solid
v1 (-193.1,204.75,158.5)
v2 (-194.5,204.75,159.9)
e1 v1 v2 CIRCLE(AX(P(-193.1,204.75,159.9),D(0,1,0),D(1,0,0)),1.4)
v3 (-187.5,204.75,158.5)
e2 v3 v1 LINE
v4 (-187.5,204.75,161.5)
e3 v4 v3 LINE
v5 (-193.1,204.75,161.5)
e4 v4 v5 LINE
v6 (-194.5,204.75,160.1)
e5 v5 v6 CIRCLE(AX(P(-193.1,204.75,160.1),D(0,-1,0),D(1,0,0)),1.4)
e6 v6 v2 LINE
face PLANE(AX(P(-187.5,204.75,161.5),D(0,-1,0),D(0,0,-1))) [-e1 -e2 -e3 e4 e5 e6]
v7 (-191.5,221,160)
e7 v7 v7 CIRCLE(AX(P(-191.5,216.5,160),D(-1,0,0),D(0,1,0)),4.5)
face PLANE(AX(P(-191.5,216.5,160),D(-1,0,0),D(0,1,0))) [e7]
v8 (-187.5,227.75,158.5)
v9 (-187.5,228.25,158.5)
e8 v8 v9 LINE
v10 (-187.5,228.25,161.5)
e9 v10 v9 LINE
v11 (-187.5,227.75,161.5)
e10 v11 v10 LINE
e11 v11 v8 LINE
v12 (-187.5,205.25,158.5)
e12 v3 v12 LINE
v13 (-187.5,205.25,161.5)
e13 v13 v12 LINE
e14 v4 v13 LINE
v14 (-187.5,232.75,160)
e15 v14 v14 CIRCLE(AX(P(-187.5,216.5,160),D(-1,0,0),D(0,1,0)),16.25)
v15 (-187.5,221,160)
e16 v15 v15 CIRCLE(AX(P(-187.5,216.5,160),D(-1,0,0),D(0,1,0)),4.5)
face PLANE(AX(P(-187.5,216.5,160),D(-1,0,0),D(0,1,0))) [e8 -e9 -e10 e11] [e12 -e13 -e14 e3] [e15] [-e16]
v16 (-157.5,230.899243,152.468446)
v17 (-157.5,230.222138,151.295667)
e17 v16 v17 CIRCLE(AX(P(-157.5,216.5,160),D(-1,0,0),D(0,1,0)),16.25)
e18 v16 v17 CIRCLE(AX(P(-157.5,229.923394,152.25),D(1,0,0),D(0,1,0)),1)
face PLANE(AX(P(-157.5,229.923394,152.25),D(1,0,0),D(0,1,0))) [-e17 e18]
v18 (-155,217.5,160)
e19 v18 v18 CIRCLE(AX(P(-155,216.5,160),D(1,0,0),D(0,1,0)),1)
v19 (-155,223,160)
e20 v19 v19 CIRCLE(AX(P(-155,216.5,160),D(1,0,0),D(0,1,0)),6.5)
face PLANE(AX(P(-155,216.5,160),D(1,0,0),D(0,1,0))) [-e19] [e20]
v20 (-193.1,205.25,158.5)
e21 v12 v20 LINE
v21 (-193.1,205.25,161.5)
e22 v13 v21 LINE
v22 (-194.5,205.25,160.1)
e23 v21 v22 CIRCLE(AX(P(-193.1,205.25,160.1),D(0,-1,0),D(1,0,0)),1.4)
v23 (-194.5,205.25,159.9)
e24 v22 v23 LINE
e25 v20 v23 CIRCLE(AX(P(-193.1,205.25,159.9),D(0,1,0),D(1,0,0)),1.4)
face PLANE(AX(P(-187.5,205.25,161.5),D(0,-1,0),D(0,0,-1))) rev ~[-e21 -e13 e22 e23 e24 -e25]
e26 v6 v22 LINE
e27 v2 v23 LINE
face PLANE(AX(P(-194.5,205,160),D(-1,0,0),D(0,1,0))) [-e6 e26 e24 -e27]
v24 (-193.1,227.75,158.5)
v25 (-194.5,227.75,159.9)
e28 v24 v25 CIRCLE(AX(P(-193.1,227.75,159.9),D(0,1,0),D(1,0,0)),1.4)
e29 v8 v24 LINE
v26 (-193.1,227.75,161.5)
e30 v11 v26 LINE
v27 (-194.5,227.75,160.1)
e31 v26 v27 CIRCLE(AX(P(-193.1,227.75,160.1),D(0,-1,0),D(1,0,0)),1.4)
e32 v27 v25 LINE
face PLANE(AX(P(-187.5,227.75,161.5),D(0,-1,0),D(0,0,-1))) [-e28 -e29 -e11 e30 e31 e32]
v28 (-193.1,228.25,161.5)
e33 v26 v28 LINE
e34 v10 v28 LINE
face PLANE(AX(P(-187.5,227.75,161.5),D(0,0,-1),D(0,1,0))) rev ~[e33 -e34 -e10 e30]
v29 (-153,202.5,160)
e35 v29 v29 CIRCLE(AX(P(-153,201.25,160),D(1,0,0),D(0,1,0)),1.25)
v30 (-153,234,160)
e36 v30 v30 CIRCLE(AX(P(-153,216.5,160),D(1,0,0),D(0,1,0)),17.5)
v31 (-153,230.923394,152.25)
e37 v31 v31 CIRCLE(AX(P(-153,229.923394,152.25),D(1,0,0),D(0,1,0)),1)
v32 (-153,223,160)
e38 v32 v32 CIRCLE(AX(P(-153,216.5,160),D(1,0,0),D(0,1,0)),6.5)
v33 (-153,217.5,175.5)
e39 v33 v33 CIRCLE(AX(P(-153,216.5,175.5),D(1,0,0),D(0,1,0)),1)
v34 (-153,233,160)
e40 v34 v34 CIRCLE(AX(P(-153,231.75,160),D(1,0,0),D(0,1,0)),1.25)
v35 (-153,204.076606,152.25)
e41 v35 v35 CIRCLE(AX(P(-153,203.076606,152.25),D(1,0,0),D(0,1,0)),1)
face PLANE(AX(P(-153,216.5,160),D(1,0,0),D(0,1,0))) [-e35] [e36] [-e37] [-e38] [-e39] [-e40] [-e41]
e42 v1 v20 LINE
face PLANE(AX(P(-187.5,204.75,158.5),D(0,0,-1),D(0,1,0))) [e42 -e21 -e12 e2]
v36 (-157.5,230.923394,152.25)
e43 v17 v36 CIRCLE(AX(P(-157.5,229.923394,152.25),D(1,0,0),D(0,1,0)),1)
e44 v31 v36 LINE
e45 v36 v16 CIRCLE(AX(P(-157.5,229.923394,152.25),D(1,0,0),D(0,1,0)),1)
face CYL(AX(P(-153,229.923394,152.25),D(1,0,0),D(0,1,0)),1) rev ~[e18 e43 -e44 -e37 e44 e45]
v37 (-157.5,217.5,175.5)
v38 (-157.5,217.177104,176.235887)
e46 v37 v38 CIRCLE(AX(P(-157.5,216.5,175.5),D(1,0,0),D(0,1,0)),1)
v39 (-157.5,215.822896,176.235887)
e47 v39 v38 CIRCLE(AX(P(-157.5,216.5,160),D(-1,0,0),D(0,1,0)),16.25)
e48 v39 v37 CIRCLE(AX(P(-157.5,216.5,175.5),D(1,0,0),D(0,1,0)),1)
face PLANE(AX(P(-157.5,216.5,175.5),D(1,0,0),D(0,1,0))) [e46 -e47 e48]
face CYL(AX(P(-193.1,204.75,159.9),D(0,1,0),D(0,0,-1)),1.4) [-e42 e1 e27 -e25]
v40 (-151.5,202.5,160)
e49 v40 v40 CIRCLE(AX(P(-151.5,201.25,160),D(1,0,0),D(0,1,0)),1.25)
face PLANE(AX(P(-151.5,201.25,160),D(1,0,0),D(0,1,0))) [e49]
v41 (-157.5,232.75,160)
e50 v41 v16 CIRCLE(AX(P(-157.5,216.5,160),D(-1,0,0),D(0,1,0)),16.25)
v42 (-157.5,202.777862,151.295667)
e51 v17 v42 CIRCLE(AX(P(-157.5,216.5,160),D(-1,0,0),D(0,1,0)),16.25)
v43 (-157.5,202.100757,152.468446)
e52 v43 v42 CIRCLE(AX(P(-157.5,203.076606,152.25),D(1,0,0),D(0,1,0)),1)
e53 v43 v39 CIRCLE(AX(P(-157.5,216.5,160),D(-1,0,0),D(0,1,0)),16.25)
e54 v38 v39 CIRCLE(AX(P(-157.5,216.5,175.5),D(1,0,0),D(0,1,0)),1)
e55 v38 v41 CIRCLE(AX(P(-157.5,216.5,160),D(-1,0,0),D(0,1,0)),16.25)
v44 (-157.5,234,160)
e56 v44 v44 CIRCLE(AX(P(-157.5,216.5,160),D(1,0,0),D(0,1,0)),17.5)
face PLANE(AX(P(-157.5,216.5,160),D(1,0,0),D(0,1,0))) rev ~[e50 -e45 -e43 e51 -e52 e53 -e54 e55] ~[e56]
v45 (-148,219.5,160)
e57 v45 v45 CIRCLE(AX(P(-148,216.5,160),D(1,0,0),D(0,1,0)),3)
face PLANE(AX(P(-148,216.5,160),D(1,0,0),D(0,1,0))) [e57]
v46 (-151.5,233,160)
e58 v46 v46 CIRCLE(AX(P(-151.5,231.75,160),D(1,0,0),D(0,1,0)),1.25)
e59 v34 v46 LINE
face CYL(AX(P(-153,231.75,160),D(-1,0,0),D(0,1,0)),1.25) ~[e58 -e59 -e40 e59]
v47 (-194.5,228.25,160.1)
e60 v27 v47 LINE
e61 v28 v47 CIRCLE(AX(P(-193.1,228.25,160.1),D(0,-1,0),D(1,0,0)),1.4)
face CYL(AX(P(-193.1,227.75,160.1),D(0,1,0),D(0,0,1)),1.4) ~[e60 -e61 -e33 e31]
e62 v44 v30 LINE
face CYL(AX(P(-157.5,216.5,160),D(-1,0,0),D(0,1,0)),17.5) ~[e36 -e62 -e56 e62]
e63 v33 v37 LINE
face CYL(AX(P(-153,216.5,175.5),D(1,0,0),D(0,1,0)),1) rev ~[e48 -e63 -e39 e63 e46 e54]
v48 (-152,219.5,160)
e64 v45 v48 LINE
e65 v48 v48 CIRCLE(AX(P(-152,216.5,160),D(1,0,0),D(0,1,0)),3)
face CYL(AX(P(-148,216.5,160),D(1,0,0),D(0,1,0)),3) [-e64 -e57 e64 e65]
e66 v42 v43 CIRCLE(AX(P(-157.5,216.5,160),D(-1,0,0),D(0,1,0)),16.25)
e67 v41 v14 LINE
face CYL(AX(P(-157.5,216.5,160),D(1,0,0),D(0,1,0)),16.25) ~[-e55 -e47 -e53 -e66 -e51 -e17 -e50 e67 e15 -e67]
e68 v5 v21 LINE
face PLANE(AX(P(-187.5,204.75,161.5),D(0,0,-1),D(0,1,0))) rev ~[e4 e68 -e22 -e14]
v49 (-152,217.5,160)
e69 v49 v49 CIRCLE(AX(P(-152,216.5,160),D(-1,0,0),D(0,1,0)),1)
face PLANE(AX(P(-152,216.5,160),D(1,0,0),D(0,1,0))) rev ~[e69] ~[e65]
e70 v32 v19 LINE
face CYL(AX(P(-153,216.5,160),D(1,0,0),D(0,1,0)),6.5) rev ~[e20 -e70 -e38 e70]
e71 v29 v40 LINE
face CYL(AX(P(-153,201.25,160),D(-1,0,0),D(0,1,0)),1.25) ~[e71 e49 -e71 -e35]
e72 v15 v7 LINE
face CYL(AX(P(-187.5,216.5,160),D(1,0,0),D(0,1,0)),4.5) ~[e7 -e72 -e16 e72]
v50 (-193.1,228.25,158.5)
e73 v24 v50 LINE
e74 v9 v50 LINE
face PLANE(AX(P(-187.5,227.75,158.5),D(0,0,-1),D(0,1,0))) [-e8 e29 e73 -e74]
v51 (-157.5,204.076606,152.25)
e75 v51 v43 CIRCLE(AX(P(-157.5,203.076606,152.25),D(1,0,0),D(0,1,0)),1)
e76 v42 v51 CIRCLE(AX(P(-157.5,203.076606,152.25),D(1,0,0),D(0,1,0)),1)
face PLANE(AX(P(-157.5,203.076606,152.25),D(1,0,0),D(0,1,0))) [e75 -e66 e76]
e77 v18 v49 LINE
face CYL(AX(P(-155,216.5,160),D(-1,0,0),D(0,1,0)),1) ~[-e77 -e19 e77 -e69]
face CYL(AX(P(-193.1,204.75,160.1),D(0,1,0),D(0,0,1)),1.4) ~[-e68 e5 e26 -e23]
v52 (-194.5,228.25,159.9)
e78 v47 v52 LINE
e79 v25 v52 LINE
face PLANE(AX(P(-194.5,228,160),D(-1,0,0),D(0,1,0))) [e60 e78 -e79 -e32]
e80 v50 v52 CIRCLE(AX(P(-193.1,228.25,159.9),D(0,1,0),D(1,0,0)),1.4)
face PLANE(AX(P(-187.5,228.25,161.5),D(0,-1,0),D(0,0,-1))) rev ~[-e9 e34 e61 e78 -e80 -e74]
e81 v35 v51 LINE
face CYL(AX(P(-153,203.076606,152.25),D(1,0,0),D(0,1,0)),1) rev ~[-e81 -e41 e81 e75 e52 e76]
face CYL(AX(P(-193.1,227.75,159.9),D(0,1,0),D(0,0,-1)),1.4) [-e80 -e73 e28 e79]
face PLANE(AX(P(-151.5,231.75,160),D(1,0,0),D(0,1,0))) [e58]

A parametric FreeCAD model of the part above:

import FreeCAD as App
import Part
import Sketcher

V = App.Vector


def edges_at(feature, points):
    """Names of the edges that pass closest to the given points."""
    edges = feature.Shape.Edges
    near = lambda p: min(range(len(edges)), key=lambda i: edges[i].distToShape(Part.Vertex(*p))[0])
    return sorted({f"Edge{near(p) + 1}" for p in points})


def add_polygon(sketch, points):
    """Adds a closed chain of lines whose ends are joined by coincident constraints."""
    first, n = sketch.GeometryCount, len(points)
    for a, b in zip(points, points[1:] + points[:1]):
        sketch.addGeometry(Part.LineSegment(App.Vector(*a, 0), App.Vector(*b, 0)), False)
    for i in range(n):
        sketch.addConstraint(Sketcher.Constraint("Coincident", first + i, 2, first + (i + 1) % n, 1))

doc = App.newDocument("Part")
body = doc.addObject("PartDesign::Body", "Body")

sketch1 = doc.addObject("Sketcher::SketchObject", "Sketch")
body.addObject(sketch1)
sketch1.AttachmentSupport = (doc.XY_Plane, [""])
sketch1.MapMode = "FlatFace"
sketch1.addGeometry(Part.Circle(V(0, 0, 0), V(0, 0, 1), 18), False)
sketch1.addConstraint([
    Sketcher.Constraint("Coincident", 0, 3, -1, 1),
    Sketcher.Constraint("Diameter", 0, 35.0),
])
pad1 = doc.addObject("PartDesign::Pad", "Pad")
body.addObject(pad1)
pad1.Profile = sketch1
pad1.Length = 4.5

sketch2 = doc.addObject("Sketcher::SketchObject", "Sketch001")
body.addObject(sketch2)
sketch2.AttachmentSupport = (doc.XY_Plane, [""])
sketch2.MapMode = "FlatFace"
sketch2.addGeometry(Part.Circle(V(0, 0, 0), V(0, 0, 1), 16), False)
sketch2.addConstraint([
    Sketcher.Constraint("Coincident", 0, 3, -1, 1),
    Sketcher.Constraint("Diameter", 0, 32.5),
])
pad2 = doc.addObject("PartDesign::Pad", "Pad001")
body.addObject(pad2)
pad2.Profile = sketch2
pad2.Length = 30
pad2.Reversed = True

sketch3 = doc.addObject("Sketcher::SketchObject", "Sketch002")
body.addObject(sketch3)
sketch3.AttachmentSupport = (doc.XY_Plane, [""])
sketch3.MapMode = "FlatFace"
sketch3.AttachmentOffset = App.Placement(V(0, 0, -30), App.Rotation())
sketch3.addGeometry(Part.Circle(V(0, 0, 0), V(0, 0, 1), 4.5), False)
sketch3.addConstraint([
    Sketcher.Constraint("Coincident", 0, 3, -1, 1),
    Sketcher.Constraint("Diameter", 0, 9.0),
])
pad3 = doc.addObject("PartDesign::Pad", "Pad002")
body.addObject(pad3)
pad3.Profile = sketch3
pad3.Length = 4
pad3.Reversed = True

sketch4 = doc.addObject("Sketcher::SketchObject", "Sketch003")
body.addObject(sketch4)
sketch4.AttachmentSupport = (doc.XY_Plane, [""])
sketch4.MapMode = "FlatFace"
sketch4.AttachmentOffset = App.Placement(V(0, 0, -30), App.Rotation())
add_polygon(sketch4, [(11.2, -1.5), (11.2, 1.5), (11.8, 1.5), (11.8, -1.5)])
add_polygon(sketch4, [(-11.8, -1.5), (-11.8, 1.5), (-11.2, 1.5), (-11.2, -1.5)])
sketch4.addConstraint([
    Sketcher.Constraint("Vertical", 0),
    Sketcher.Constraint("Horizontal", 1),
    Sketcher.Constraint("Vertical", 2),
    Sketcher.Constraint("Horizontal", 3),
    Sketcher.Constraint("Vertical", 4),
    Sketcher.Constraint("Horizontal", 5),
    Sketcher.Constraint("Vertical", 6),
    Sketcher.Constraint("Horizontal", 7),
    Sketcher.Constraint("Symmetric", 2, 2, 4, 2, -1, 1),
    Sketcher.Constraint("Symmetric", 0, 2, 6, 2, -1, 1),
    Sketcher.Constraint("Horizontal", 1, 2, 4, 2),
    Sketcher.Constraint("DistanceY", 0, 1, 0, 2, 3.0),
    Sketcher.Constraint("DistanceX", 1, 1, 1, 2, 0.5),
    Sketcher.Constraint("DistanceX", 4, 2, 0, 2, 23.0),
])
pad4 = doc.addObject("PartDesign::Pad", "Pad003")
body.addObject(pad4)
pad4.Profile = sketch4
pad4.Length = 7
pad4.Reversed = True
doc.recompute()

fillet = doc.addObject("PartDesign::Fillet", "Fillet")
body.addObject(fillet)
fillet.Base = (pad4, edges_at(pad4, [
    (11.5, -1.5, -37),
    (11.5, 1.5, -37),
    (-11.5, 1.5, -37),
    (-11.5, -1.5, -37),
]))
fillet.Radius = 1.4

sketch5 = doc.addObject("Sketcher::SketchObject", "Sketch004")
body.addObject(sketch5)
sketch5.AttachmentSupport = (doc.XY_Plane, [""])
sketch5.MapMode = "FlatFace"
sketch5.AttachmentOffset = App.Placement(V(0, 0, 4.5), App.Rotation())
sketch5.addGeometry([
    Part.Circle(V(-15.2, 0, 0), V(0, 0, 1), 1.2),
    Part.Circle(V(15.2, 0, 0), V(0, 0, 1), 1.2),
], False)
sketch5.addConstraint([
    Sketcher.Constraint("Equal", 0, 1),
    Sketcher.Constraint("Symmetric", 0, 3, 1, 3, -1, 1),
    Sketcher.Constraint("PointOnObject", 0, 3, -1),
    Sketcher.Constraint("Diameter", 0, 2.5),
    Sketcher.Constraint("DistanceX", 0, 3, 1, 3, 30.5),
])
pad5 = doc.addObject("PartDesign::Pad", "Pad004")
body.addObject(pad5)
pad5.Profile = sketch5
pad5.Length = 1.5

sketch6 = doc.addObject("Sketcher::SketchObject", "Sketch005")
body.addObject(sketch6)
sketch6.AttachmentSupport = (doc.XY_Plane, [""])
sketch6.MapMode = "FlatFace"
sketch6.AttachmentOffset = App.Placement(V(0, 0, 4.5), App.Rotation())
sketch6.addGeometry([
    Part.Circle(V(0, 15.5, 0), V(0, 0, 1), 1),
    Part.Circle(V(-13.4, -7.8, 0), V(0, 0, 1), 1),
    Part.Circle(V(13.4, -7.8, 0), V(0, 0, 1), 1),
], False)
sketch6.addConstraint([
    Sketcher.Constraint("Equal", 0, 1),
    Sketcher.Constraint("Equal", 1, 2),
    Sketcher.Constraint("Symmetric", 1, 3, 2, 3, -2),
    Sketcher.Constraint("PointOnObject", 0, 3, -2),
    Sketcher.Constraint("Diameter", 0, 2.0),
    Sketcher.Constraint("DistanceY", -1, 1, 0, 3, 15.5),
    Sketcher.Constraint("DistanceY", 1, 3, -1, 1, 7.75),
    Sketcher.Constraint("DistanceX", 1, 3, 2, 3, 26.846788),
])
pocket1 = doc.addObject("PartDesign::Pocket", "Pocket")
body.addObject(pocket1)
pocket1.Profile = sketch6
pocket1.Length = 4.5

sketch7 = doc.addObject("Sketcher::SketchObject", "Sketch006")
body.addObject(sketch7)
sketch7.AttachmentSupport = (doc.XY_Plane, [""])
sketch7.MapMode = "FlatFace"
sketch7.AttachmentOffset = App.Placement(V(0, 0, 4.5), App.Rotation())
sketch7.addGeometry(Part.Circle(V(0, 0, 0), V(0, 0, 1), 6), False)
sketch7.addConstraint([
    Sketcher.Constraint("Coincident", 0, 3, -1, 1),
    Sketcher.Constraint("Diameter", 0, 13.0),
])
pocket2 = doc.addObject("PartDesign::Pocket", "Pocket001")
body.addObject(pocket2)
pocket2.Profile = sketch7
pocket2.Length = 2

sketch8 = doc.addObject("Sketcher::SketchObject", "Sketch007")
body.addObject(sketch8)
sketch8.AttachmentSupport = (doc.XY_Plane, [""])
sketch8.MapMode = "FlatFace"
sketch8.AttachmentOffset = App.Placement(V(0, 0, 2.5), App.Rotation())
sketch8.addGeometry(Part.Circle(V(0, 0, 0), V(0, 0, 1), 1), False)
sketch8.addConstraint([
    Sketcher.Constraint("Coincident", 0, 3, -1, 1),
    Sketcher.Constraint("Diameter", 0, 2.0),
])
pad6 = doc.addObject("PartDesign::Pad", "Pad005")
body.addObject(pad6)
pad6.Profile = sketch8
pad6.Length = 7

sketch9 = doc.addObject("Sketcher::SketchObject", "Sketch008")
body.addObject(sketch9)
sketch9.AttachmentSupport = (doc.XY_Plane, [""])
sketch9.MapMode = "FlatFace"
sketch9.AttachmentOffset = App.Placement(V(0, 0, 9.5), App.Rotation())
sketch9.addGeometry(Part.Circle(V(0, 0, 0), V(0, 0, 1), 3), False)
sketch9.addConstraint([
    Sketcher.Constraint("Coincident", 0, 3, -1, 1),
    Sketcher.Constraint("Diameter", 0, 6.0),
])
pad7 = doc.addObject("PartDesign::Pad", "Pad006")
body.addObject(pad7)
pad7.Profile = sketch9
pad7.Length = 4
pad7.Reversed = True
body2 = doc.addObject("PartDesign::Body", "Body001")
doc.recompute()

body.Placement = App.Placement(V(0, 0, 0), App.Rotation(V(1, 0, 0), 90))
boolean = doc.addObject("PartDesign::Boolean", "Boolean")
body2.addObject(boolean)
boolean.Type = "Fuse"
boolean.addObjects([body])
body3 = doc.addObject("PartDesign::Body", "Body002")
doc.recompute()

body2.Placement = App.Placement(V(-157.5, 216.5, 160), App.Rotation(V(0, 0, 1), 90))
boolean2 = doc.addObject("PartDesign::Boolean", "Boolean001")
body3.addObject(boolean2)
boolean2.Type = "Fuse"
boolean2.addObjects([body2])

doc.recompute()
